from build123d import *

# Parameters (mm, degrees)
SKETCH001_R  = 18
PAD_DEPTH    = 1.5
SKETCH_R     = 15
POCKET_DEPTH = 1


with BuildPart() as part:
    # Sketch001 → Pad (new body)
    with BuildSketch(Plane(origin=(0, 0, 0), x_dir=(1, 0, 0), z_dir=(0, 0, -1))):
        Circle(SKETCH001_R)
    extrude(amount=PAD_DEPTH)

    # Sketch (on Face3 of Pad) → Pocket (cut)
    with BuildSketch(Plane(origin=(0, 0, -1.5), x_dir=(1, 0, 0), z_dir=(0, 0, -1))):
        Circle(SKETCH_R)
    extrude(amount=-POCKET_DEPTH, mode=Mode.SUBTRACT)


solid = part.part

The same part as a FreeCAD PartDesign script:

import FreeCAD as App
import Part
import Sketcher

V = App.Vector
Q = App.Units.Quantity

doc = App.newDocument("Part")
body = doc.addObject("PartDesign::Body", "Body")

# Sketch on XY plane
sketch1 = doc.addObject("Sketcher::SketchObject", "Sketch")
body.addObject(sketch1)
sketch1.AttachmentSupport = (doc.XY_Plane, [""])
sketch1.MapMode = "FlatFace"
sketch1.addGeometry(Part.Circle(V(0, 0, 0), V(0, 0, 1), 18), False)
sketch1.addConstraint([
    Sketcher.Constraint("Coincident", 0, 3, -1, 1),
    Sketcher.Constraint("Diameter", 0, Q("36 mm")),
])
pad1 = doc.addObject("PartDesign::Pad", "Pad")
body.addObject(pad1)
pad1.Profile = sketch1
pad1.Length = 1.5
pad1.Reversed = True

# Sketch on XY plane
sketch2 = doc.addObject("Sketcher::SketchObject", "Sketch001")
body.addObject(sketch2)
sketch2.AttachmentSupport = (doc.XY_Plane, [""])
sketch2.MapMode = "FlatFace"
sketch2.AttachmentOffset = App.Placement(V(0, 0, -1.5), App.Rotation())
sketch2.addGeometry(Part.Circle(V(0, 0, 0), V(0, 0, 1), 15), False)
sketch2.addConstraint([
    Sketcher.Constraint("Coincident", 0, 3, -1, 1),
    Sketcher.Constraint("Diameter", 0, Q("30 mm")),
])
pocket1 = doc.addObject("PartDesign::Pocket", "Pocket")
body.addObject(pocket1)
pocket1.Profile = sketch2
pocket1.Length = 1
pocket1.Reversed = True

doc.recompute()
